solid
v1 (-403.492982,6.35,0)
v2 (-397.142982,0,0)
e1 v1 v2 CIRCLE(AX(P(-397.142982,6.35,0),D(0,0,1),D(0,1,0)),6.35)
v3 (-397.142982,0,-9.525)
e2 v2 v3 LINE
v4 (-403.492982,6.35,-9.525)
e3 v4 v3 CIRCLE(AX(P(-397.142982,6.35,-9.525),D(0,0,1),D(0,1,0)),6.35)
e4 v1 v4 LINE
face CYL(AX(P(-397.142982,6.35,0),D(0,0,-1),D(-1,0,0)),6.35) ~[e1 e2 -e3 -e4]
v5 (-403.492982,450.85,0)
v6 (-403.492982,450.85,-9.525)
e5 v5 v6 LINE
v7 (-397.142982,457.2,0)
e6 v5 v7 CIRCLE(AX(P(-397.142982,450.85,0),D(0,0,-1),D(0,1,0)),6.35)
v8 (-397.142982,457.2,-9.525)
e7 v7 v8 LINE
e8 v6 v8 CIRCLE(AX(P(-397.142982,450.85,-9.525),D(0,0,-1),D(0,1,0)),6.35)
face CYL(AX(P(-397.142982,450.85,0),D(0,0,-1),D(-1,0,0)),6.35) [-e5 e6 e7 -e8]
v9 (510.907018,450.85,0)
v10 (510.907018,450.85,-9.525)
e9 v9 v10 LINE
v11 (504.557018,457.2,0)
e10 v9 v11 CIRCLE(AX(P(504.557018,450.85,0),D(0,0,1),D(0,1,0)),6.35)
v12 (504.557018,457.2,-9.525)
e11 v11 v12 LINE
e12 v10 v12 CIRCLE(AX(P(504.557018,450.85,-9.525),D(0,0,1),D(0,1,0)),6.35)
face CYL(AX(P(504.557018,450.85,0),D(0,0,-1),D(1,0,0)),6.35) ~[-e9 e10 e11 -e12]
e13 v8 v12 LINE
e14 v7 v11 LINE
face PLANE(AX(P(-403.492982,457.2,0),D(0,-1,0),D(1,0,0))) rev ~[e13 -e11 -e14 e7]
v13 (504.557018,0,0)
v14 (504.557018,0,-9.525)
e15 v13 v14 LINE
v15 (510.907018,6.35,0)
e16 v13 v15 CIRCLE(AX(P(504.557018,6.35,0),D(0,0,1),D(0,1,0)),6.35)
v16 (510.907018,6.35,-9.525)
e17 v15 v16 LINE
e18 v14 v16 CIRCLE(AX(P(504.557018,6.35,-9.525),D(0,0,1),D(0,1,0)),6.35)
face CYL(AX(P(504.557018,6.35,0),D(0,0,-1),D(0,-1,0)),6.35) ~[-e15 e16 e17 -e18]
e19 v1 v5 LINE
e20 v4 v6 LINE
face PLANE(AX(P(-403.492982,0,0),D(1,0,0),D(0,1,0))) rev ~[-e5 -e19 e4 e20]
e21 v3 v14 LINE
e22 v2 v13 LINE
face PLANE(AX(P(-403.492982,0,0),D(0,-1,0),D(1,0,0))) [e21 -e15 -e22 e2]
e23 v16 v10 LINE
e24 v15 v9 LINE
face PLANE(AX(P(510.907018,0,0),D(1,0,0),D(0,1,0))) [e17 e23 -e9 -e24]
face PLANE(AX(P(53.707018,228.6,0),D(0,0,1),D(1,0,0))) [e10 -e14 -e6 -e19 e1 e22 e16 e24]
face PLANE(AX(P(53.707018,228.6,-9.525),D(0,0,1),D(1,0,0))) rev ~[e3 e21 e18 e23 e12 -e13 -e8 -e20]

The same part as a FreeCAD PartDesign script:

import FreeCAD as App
import Part
import Sketcher

V = App.Vector
Q = App.Units.Quantity


def edges_at(feature, points):
    """Names of the edges that pass closest to the given points."""
    edges = feature.Shape.Edges
    near = lambda p: min(range(len(edges)), key=lambda i: edges[i].distToShape(Part.Vertex(*p))[0])
    return sorted({f"Edge{near(p) + 1}" for p in points})


def add_polygon(sketch, points):
    """Adds a closed chain of lines whose ends are joined by coincident constraints."""
    first, n = sketch.GeometryCount, len(points)
    for a, b in zip(points, points[1:] + points[:1]):
        sketch.addGeometry(Part.LineSegment(App.Vector(*a, 0), App.Vector(*b, 0)), False)
    for i in range(n):
        sketch.addConstraint(Sketcher.Constraint("Coincident", first + i, 2, first + (i + 1) % n, 1))

doc = App.newDocument("Part")
body = doc.addObject("PartDesign::Body", "Body")

# Sketch on XY plane
sketch1 = body.newObject("Sketcher::SketchObject", "Sketch")
sketch1.AttachmentSupport = (doc.getObject("XY_Plane"), [""])
sketch1.MapMode = "FlatFace"
add_polygon(sketch1, [(-403, 457), (-403, 0), (511, 0), (511, 457)])  # lines 0-3
sketch1.addConstraint([
    Sketcher.Constraint("Vertical", 0),
    Sketcher.Constraint("Horizontal", 1),
    Sketcher.Constraint("Vertical", 2),
    Sketcher.Constraint("Horizontal", 3),
    Sketcher.Constraint("PointOnObject", 0, 2, -1),
    Sketcher.Constraint("DistanceX", 1, 1, 1, 2, Q("36 in")),
    Sketcher.Constraint("DistanceY", 0, 2, 0, 1, Q("18 in")),
    Sketcher.Constraint("DistanceX", 0, 2, -1, 1, Q("403.492982 mm")),
])
pad1 = body.newObject("PartDesign::Pad", "Pad")
pad1.Profile = sketch1
pad1.Length = Q("0.375 in")
pad1.Reversed = True
doc.recompute()

fillet = body.newObject("PartDesign::Fillet", "Fillet")
fillet.Base = (pad1, edges_at(pad1, [
    (-403.493, 457.2, -4.763),
    (-403.493, 0, -4.763),
    (510.907, 0, -4.763),
    (510.907, 457.2, -4.763),
]))
fillet.Radius = Q("0.25 in")

doc.recompute()
